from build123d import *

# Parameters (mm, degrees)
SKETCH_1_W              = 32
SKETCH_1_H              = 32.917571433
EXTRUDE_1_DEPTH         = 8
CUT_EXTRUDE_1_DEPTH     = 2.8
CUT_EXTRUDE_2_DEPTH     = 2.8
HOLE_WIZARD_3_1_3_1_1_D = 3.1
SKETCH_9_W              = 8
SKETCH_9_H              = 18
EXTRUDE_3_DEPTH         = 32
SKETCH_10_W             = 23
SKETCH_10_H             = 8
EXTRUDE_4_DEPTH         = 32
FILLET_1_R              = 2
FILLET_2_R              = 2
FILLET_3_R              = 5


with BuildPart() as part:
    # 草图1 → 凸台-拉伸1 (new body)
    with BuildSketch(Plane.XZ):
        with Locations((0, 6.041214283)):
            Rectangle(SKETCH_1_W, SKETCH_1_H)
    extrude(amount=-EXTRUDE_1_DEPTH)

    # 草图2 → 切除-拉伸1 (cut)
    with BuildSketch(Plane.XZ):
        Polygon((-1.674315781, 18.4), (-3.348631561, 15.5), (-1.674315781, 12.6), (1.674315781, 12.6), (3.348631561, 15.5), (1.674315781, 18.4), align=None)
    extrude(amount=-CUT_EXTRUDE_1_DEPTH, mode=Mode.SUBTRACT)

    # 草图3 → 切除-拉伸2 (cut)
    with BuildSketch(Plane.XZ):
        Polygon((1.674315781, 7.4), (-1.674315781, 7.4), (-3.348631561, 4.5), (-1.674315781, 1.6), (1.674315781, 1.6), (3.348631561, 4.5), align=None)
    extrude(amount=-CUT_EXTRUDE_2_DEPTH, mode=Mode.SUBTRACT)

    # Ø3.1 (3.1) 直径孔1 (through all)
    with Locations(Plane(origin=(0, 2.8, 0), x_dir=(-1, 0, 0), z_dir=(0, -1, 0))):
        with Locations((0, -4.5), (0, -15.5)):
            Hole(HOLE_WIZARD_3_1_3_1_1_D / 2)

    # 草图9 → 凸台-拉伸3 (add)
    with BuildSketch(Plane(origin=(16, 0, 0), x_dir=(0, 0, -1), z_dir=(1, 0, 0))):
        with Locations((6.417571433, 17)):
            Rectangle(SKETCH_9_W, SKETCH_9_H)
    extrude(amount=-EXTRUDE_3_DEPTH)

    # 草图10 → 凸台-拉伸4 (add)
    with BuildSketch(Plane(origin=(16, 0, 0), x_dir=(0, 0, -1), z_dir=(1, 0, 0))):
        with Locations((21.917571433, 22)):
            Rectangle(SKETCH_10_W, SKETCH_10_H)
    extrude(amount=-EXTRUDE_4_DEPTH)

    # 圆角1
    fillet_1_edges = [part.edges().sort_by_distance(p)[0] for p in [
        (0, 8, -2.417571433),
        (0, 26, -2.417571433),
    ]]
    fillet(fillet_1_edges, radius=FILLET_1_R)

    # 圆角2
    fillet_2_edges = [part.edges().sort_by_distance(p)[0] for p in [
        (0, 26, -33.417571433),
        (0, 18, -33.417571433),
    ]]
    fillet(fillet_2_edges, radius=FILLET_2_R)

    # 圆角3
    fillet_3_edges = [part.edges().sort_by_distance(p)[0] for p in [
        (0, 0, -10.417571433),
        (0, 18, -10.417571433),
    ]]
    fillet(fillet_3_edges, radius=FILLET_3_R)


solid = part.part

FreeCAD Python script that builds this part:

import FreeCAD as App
import Part
import Sketcher
Q = App.Units.Quantity


def edges_at(feature, points):
    """Names of the edges that pass closest to the given points."""
    edges = feature.Shape.Edges
    near = lambda p: min(range(len(edges)), key=lambda i: edges[i].distToShape(Part.Vertex(*p))[0])
    return sorted({f"Edge{near(p) + 1}" for p in points})


def add_polygon(sketch, points):
    """Adds a closed chain of lines whose ends are joined by coincident constraints."""
    first, n = sketch.GeometryCount, len(points)
    for a, b in zip(points, points[1:] + points[:1]):
        sketch.addGeometry(Part.LineSegment(App.Vector(*a, 0), App.Vector(*b, 0)), False)
    for i in range(n):
        sketch.addConstraint(Sketcher.Constraint("Coincident", first + i, 2, first + (i + 1) % n, 1))

doc = App.newDocument("Part")
params = doc.addObject("Spreadsheet::Sheet", "Params")
for row, (alias, value) in enumerate([
    ("sketch1_width", "32 mm"),
    ("pad1_length", "8 mm"),
    ("pocket1_length", "2.8 mm"),
    ("pocket2_length", "2.8 mm"),
    ("sketch4_diameter", "3.1 mm"),
    ("hole_diameter", "3.1 mm"),
    ("sketch5_width", "18 mm"),
    ("sketch5_height", "8 mm"),
    ("pad2_length", "32 mm"),
    ("sketch6_width", "8 mm"),
    ("sketch6_height", "23 mm"),
    ("pad3_length", "32 mm"),
    ("fillet_radius", "2 mm"),
    ("fillet2_radius", "2 mm"),
    ("fillet3_radius", "5 mm"),
], start=1):
    params.set(f"A{row}", alias)
    params.set(f"B{row}", "=" + value)
    params.setAlias(f"B{row}", alias)

body = doc.addObject("PartDesign::Body", "Body")

sketch1 = body.newObject("Sketcher::SketchObject", "Sketch")
sketch1.AttachmentSupport = (doc.getObject("XZ_Plane"), [""])
sketch1.MapMode = "FlatFace"
add_polygon(sketch1, [(-16, 22), (-16, -10), (16, -10), (16, 22)])
sketch1.addConstraint(Sketcher.Constraint("Vertical", 0))
sketch1.addConstraint(Sketcher.Constraint("Horizontal", 1))
sketch1.addConstraint(Sketcher.Constraint("Vertical", 2))
sketch1.addConstraint(Sketcher.Constraint("Horizontal", 3))
sketch1.addConstraint(Sketcher.Constraint("DistanceX", 1, 1, 1, 2, 32.0))
sketch1.addConstraint(Sketcher.Constraint("DistanceX", 0, 2, -1, 1, 16.0))
sketch1.addConstraint(Sketcher.Constraint("DistanceY", -1, 1, 2, 2, 22.5))
sketch1.addConstraint(Sketcher.Constraint("DistanceY", 0, 2, 0, 1, 32.917571))
sketch1.setExpression("Constraints[8]", "Params.sketch1_width")
pad1 = body.newObject("PartDesign::Pad", "Pad")
pad1.Profile = sketch1
pad1.setExpression("Length", "Params.pad1_length")
pad1.Reversed = True

sketch2 = body.newObject("Sketcher::SketchObject", "Sketch001")
sketch2.AttachmentSupport = (doc.getObject("XZ_Plane"), [""])
sketch2.MapMode = "FlatFace"
add_polygon(sketch2, [(-1.7, 18.4), (-3.3, 15.5), (-1.7, 12.6), (1.7, 12.6), (3.3, 15.5), (1.7, 18.4)])
sketch2.addConstraint(Sketcher.Constraint("Horizontal", 2))
sketch2.addConstraint(Sketcher.Constraint("Horizontal", 5))
sketch2.addConstraint(Sketcher.Constraint("Symmetric", 0, 2, 3, 2, -2))
sketch2.addConstraint(Sketcher.Constraint("Parallel", 0, 3))
sketch2.addConstraint(Sketcher.Constraint("Parallel", 1, 4))
sketch2.addConstraint(Sketcher.Constraint("Vertical", 2, 2, 4, 2))
sketch2.addConstraint(Sketcher.Constraint("Vertical", 1, 2, 5, 2))
sketch2.addConstraint(Sketcher.Constraint("Angle", 0, Q("-120 deg")))
sketch2.addConstraint(Sketcher.Constraint("DistanceY", -1, 1, 0, 2, 15.5))
sketch2.addConstraint(Sketcher.Constraint("DistanceY", -1, 1, 1, 2, 12.6))
sketch2.addConstraint(Sketcher.Constraint("DistanceX", 2, 1, 2, 2, 3.348632))
pocket1 = body.newObject("PartDesign::Pocket", "Pocket")
pocket1.Profile = sketch2
pocket1.setExpression("Length", "Params.pocket1_length")

sketch3 = body.newObject("Sketcher::SketchObject", "Sketch002")
sketch3.AttachmentSupport = (doc.getObject("XZ_Plane"), [""])
sketch3.MapMode = "FlatFace"
add_polygon(sketch3, [(1.7, 7.4), (-1.7, 7.4), (-3.3, 4.5), (-1.7, 1.6), (1.7, 1.6), (3.3, 4.5)])
sketch3.addConstraint(Sketcher.Constraint("Horizontal", 0))
sketch3.addConstraint(Sketcher.Constraint("Horizontal", 3))
sketch3.addConstraint(Sketcher.Constraint("Symmetric", 1, 2, 4, 2, -2))
sketch3.addConstraint(Sketcher.Constraint("Parallel", 1, 4))
sketch3.addConstraint(Sketcher.Constraint("Parallel", 2, 5))
sketch3.addConstraint(Sketcher.Constraint("Vertical", 0, 2, 2, 2))
sketch3.addConstraint(Sketcher.Constraint("Vertical", 3, 2, 5, 2))
sketch3.addConstraint(Sketcher.Constraint("Angle", 1, Q("-120 deg")))
sketch3.addConstraint(Sketcher.Constraint("DistanceY", -1, 1, 0, 2, 7.4))
sketch3.addConstraint(Sketcher.Constraint("DistanceY", -1, 1, 1, 2, 4.5))
sketch3.addConstraint(Sketcher.Constraint("DistanceX", 0, 2, 0, 1, 3.348632))
pocket2 = body.newObject("PartDesign::Pocket", "Pocket001")
pocket2.Profile = sketch3
pocket2.setExpression("Length", "Params.pocket2_length")

sketch4 = body.newObject("Sketcher::SketchObject", "Sketch003")
sketch4.AttachmentSupport = (doc.getObject("XZ_Plane"), [""])
sketch4.MapMode = "FlatFace"
sketch4.AttachmentOffset = App.Placement(App.Vector(0, 0, -2.8), App.Rotation())
sketch4.addGeometry(Part.Circle(App.Vector(0, 4.5, 0), App.Vector(0, 0, 1), 1.6), False)
sketch4.addGeometry(Part.Circle(App.Vector(0, 15.5, 0), App.Vector(0, 0, 1), 1.6), False)
sketch4.addConstraint(Sketcher.Constraint("Equal", 0, 1))
sketch4.addConstraint(Sketcher.Constraint("PointOnObject", 0, 3, -2))
sketch4.addConstraint(Sketcher.Constraint("PointOnObject", 1, 3, -2))
sketch4.addConstraint(Sketcher.Constraint("Diameter", 0, 3.1))
sketch4.addConstraint(Sketcher.Constraint("DistanceY", 0, 3, 1, 3, 11.0))
sketch4.addConstraint(Sketcher.Constraint("DistanceY", -1, 1, 0, 3, 4.5))
sketch4.setExpression("Constraints[3]", "Params.sketch4_diameter")
doc.recompute()
hole = body.newObject("PartDesign::Hole", "Hole")
hole.Profile = sketch4
hole.ThreadType = "None"
hole.setExpression("Diameter", "Params.hole_diameter")
hole.DepthType = "ThroughAll"

sketch5 = body.newObject("Sketcher::SketchObject", "Sketch004")
sketch5.AttachmentSupport = (doc.getObject("YZ_Plane"), [""])
sketch5.MapMode = "FlatFace"
sketch5.AttachmentOffset = App.Placement(App.Vector(0, 0, 16), App.Rotation())
add_polygon(sketch5, [(26, -2), (8, -2), (8, -10), (26, -10)])
sketch5.addConstraint(Sketcher.Constraint("Horizontal", 0))
sketch5.addConstraint(Sketcher.Constraint("Vertical", 1))
sketch5.addConstraint(Sketcher.Constraint("Horizontal", 2))
sketch5.addConstraint(Sketcher.Constraint("Vertical", 3))
sketch5.addConstraint(Sketcher.Constraint("DistanceX", 0, 2, 0, 1, 18.0))
sketch5.addConstraint(Sketcher.Constraint("DistanceY", 1, 2, 1, 1, 8.0))
sketch5.addConstraint(Sketcher.Constraint("DistanceX", -1, 1, 0, 2, 8.0))
sketch5.addConstraint(Sketcher.Constraint("DistanceY", 0, 2, -1, 1, 2.417571))
sketch5.setExpression("Constraints[8]", "Params.sketch5_width")
sketch5.setExpression("Constraints[9]", "Params.sketch5_height")
pad2 = body.newObject("PartDesign::Pad", "Pad001")
pad2.Profile = sketch5
pad2.setExpression("Length", "Params.pad2_length")
pad2.Reversed = True

sketch6 = body.newObject("Sketcher::SketchObject", "Sketch005")
sketch6.AttachmentSupport = (doc.getObject("YZ_Plane"), [""])
sketch6.MapMode = "FlatFace"
sketch6.AttachmentOffset = App.Placement(App.Vector(0, 0, 16), App.Rotation())
add_polygon(sketch6, [(26, -10), (18, -10), (18, -33), (26, -33)])
sketch6.addConstraint(Sketcher.Constraint("Horizontal", 0))
sketch6.addConstraint(Sketcher.Constraint("Vertical", 1))
sketch6.addConstraint(Sketcher.Constraint("Horizontal", 2))
sketch6.addConstraint(Sketcher.Constraint("Vertical", 3))
sketch6.addConstraint(Sketcher.Constraint("DistanceX", 0, 2, 0, 1, 8.0))
sketch6.addConstraint(Sketcher.Constraint("DistanceY", 1, 2, 1, 1, 23.0))
sketch6.addConstraint(Sketcher.Constraint("DistanceX", -1, 1, 0, 2, 18.0))
sketch6.addConstraint(Sketcher.Constraint("DistanceY", 0, 2, -1, 1, 10.417571))
sketch6.setExpression("Constraints[8]", "Params.sketch6_width")
sketch6.setExpression("Constraints[9]", "Params.sketch6_height")
pad3 = body.newObject("PartDesign::Pad", "Pad002")
pad3.Profile = sketch6
pad3.setExpression("Length", "Params.pad3_length")
pad3.Reversed = True
doc.recompute()

fillet = body.newObject("PartDesign::Fillet", "Fillet")
fillet.Base = (pad3, edges_at(pad3, [(0, 8, -2.418), (0, 26, -2.418)]))
fillet.setExpression("Radius", "Params.fillet_radius")
doc.recompute()

fillet2 = body.newObject("PartDesign::Fillet", "Fillet001")
fillet2.Base = (fillet, edges_at(fillet, [(0, 26, -33.418), (0, 18, -33.418)]))
fillet2.setExpression("Radius", "Params.fillet2_radius")
doc.recompute()

fillet3 = body.newObject("PartDesign::Fillet", "Fillet002")
fillet3.Base = (fillet2, edges_at(fillet2, [(0, 0, -10.418), (0, 18, -10.418)]))
fillet3.setExpression("Radius", "Params.fillet3_radius")

doc.recompute()
